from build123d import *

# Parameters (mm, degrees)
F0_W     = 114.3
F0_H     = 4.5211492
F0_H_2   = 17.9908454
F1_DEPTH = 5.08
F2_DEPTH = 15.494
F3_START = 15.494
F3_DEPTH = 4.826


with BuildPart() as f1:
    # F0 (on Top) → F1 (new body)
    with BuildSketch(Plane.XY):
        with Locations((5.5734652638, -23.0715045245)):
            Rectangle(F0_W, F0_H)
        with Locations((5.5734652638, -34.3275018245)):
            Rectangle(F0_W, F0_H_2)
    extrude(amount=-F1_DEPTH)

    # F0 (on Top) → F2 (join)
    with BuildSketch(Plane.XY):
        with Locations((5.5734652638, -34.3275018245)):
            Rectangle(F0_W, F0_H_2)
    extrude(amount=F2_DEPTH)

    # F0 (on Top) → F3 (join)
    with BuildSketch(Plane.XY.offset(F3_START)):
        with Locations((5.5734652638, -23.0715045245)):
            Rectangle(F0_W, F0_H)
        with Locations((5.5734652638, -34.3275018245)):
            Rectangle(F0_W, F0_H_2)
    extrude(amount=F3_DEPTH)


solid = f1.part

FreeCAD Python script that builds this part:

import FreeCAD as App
import Part
import Sketcher
from FreeCAD import Vector
Q = App.Units.Quantity


def add_polygon(sketch, points):
    """Adds a closed chain of lines whose ends are joined by coincident constraints."""
    first, n = sketch.GeometryCount, len(points)
    for a, b in zip(points, points[1:] + points[:1]):
        sketch.addGeometry(Part.LineSegment(App.Vector(*a, 0), App.Vector(*b, 0)), False)
    for i in range(n):
        sketch.addConstraint(Sketcher.Constraint("Coincident", first + i, 2, first + (i + 1) % n, 1))

doc = App.newDocument("Part")
params = doc.addObject("Spreadsheet::Sheet", "Params")
for row, (alias, value) in enumerate([
    ("sketch1_width", "4.5 in"),
    ("pad1_length", "0.2 in"),
    ("sketch2_width", "4.5 in"),
    ("pad2_length", "0.61 in"),
    ("sketch3_width", "4.5 in"),
    ("pad3_length", "0.19 in"),
], start=1):
    params.set(f"A{row}", alias)
    params.set(f"B{row}", "=" + value)
    params.setAlias(f"B{row}", alias)

body = doc.addObject("PartDesign::Body", "Body")

sketch1 = body.newObject("Sketcher::SketchObject", "Sketch")
sketch1.AttachmentSupport = (doc.getObject("XY_Plane"), [""])
sketch1.MapMode = "FlatFace"
add_polygon(sketch1, [(-52, -21), (-52, -43), (63, -43), (63, -21)])
sketch1.addConstraint([
    Sketcher.Constraint("Vertical", 0),
    Sketcher.Constraint("Horizontal", 1),
    Sketcher.Constraint("Vertical", 2),
    Sketcher.Constraint("Horizontal", 3),
    Sketcher.Constraint("DistanceX", 1, 1, 1, 2, Q("4.5 in")),
    Sketcher.Constraint("DistanceY", 0, 2, 0, 1, 22.511995),
    Sketcher.Constraint("DistanceY", 2, 2, -1, 1, 20.81093),
    Sketcher.Constraint("DistanceX", 0, 2, -1, 1, 51.576535),
])
sketch1.setExpression("Constraints[8]", "Params.sketch1_width")
pad1 = body.newObject("PartDesign::Pad", "Pad")
pad1.Profile = sketch1
pad1.setExpression("Length", "Params.pad1_length")
pad1.Reversed = True

sketch2 = body.newObject("Sketcher::SketchObject", "Sketch001")
sketch2.AttachmentSupport = (doc.getObject("XY_Plane"), [""])
sketch2.MapMode = "FlatFace"
add_polygon(sketch2, [(-52, -25), (-52, -43), (63, -43), (63, -25)])
sketch2.addConstraint([
    Sketcher.Constraint("Vertical", 0),
    Sketcher.Constraint("Horizontal", 1),
    Sketcher.Constraint("Vertical", 2),
    Sketcher.Constraint("Horizontal", 3),
    Sketcher.Constraint("DistanceX", 1, 1, 1, 2, Q("4.5 in")),
    Sketcher.Constraint("DistanceY", 0, 2, 0, 1, 17.990845),
    Sketcher.Constraint("DistanceY", 2, 2, -1, 1, 25.332079),
    Sketcher.Constraint("DistanceX", 0, 2, -1, 1, 51.576535),
])
sketch2.setExpression("Constraints[8]", "Params.sketch2_width")
pad2 = body.newObject("PartDesign::Pad", "Pad001")
pad2.Profile = sketch2
pad2.setExpression("Length", "Params.pad2_length")

sketch3 = body.newObject("Sketcher::SketchObject", "Sketch002")
sketch3.AttachmentSupport = (doc.getObject("XY_Plane"), [""])
sketch3.MapMode = "FlatFace"
sketch3.AttachmentOffset = App.Placement(Vector(0, 0, 0.61 * 25.4), App.Rotation())
add_polygon(sketch3, [(-52, -21), (-52, -43), (63, -43), (63, -21)])
sketch3.addConstraint([
    Sketcher.Constraint("Vertical", 0),
    Sketcher.Constraint("Horizontal", 1),
    Sketcher.Constraint("Vertical", 2),
    Sketcher.Constraint("Horizontal", 3),
    Sketcher.Constraint("DistanceX", 1, 1, 1, 2, Q("4.5 in")),
    Sketcher.Constraint("DistanceY", 0, 2, 0, 1, 22.511995),
    Sketcher.Constraint("DistanceY", 2, 2, -1, 1, 20.81093),
    Sketcher.Constraint("DistanceX", 0, 2, -1, 1, 51.576535),
])
sketch3.setExpression("Constraints[8]", "Params.sketch3_width")
pad3 = body.newObject("PartDesign::Pad", "Pad002")
pad3.Profile = sketch3
pad3.setExpression("Length", "Params.pad3_length")

doc.recompute()
